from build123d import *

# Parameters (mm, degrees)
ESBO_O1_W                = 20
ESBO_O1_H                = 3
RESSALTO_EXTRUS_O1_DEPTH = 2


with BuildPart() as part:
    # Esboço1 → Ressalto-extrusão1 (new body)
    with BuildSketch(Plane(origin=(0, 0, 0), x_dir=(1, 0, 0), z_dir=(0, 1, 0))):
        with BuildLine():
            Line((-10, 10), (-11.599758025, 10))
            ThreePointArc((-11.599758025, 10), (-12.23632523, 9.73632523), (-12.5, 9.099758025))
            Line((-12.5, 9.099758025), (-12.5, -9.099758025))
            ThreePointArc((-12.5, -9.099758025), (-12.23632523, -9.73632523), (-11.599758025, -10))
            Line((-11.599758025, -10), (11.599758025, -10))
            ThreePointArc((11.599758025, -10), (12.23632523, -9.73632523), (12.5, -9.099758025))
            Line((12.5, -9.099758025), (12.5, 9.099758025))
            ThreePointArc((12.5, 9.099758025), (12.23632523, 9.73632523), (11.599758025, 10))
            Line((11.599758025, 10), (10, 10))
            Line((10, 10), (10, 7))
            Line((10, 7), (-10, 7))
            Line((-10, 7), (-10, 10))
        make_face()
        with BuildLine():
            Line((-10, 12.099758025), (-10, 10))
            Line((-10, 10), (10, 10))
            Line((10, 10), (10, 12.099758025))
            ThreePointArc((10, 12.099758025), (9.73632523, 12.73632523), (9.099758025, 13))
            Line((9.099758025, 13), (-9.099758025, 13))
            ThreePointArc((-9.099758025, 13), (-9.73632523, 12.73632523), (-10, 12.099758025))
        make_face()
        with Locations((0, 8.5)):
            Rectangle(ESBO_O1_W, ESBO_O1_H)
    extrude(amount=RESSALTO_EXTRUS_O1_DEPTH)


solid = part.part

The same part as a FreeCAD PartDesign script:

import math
import FreeCAD as App
import Part
import Sketcher
Q = App.Units.Quantity

doc = App.newDocument("Part")
params = doc.addObject("Spreadsheet::Sheet", "Params")
for row, (alias, value) in enumerate([
    ("pad1_length", "2 mm"),
], start=1):
    params.set(f"A{row}", alias)
    params.set(f"B{row}", "=" + value)
    params.setAlias(f"B{row}", alias)

body = doc.addObject("PartDesign::Body", "Body")

sketch1 = body.newObject("Sketcher::SketchObject", "Sketch")
sketch1.AttachmentSupport = (doc.getObject("XZ_Plane"), [""])
sketch1.MapMode = "FlatFace"
sketch1.addGeometry([
    Part.LineSegment(App.Vector(-10, -10, 0), App.Vector(-11.599758, -10, 0)),
    Part.ArcOfCircle(Part.Circle(App.Vector(-11.599758, -9.099758, 0), App.Vector(0, 0, 1), 0.900242), math.radians(-180), math.radians(-90)),
    Part.LineSegment(App.Vector(-12.5, -9.099758, 0), App.Vector(-12.5, 9.099758, 0)),
    Part.ArcOfCircle(Part.Circle(App.Vector(-11.599758, 9.099758, 0), App.Vector(0, 0, 1), 0.900242), math.radians(90), math.radians(180)),
    Part.LineSegment(App.Vector(-11.599758, 10, 0), App.Vector(11.599758, 10, 0)),
    Part.ArcOfCircle(Part.Circle(App.Vector(11.599758, 9.099758, 0), App.Vector(0, 0, 1), 0.900242), math.radians(0), math.radians(90)),
    Part.LineSegment(App.Vector(12.5, 9.099758, 0), App.Vector(12.5, -9.099758, 0)),
    Part.ArcOfCircle(Part.Circle(App.Vector(11.599758, -9.099758, 0), App.Vector(0, 0, 1), 0.900242), math.radians(-90), math.radians(0)),
    Part.LineSegment(App.Vector(11.599758, -10, 0), App.Vector(10, -10, 0)),
    Part.LineSegment(App.Vector(10, -10, 0), App.Vector(10, -12.099758, 0)),
    Part.ArcOfCircle(Part.Circle(App.Vector(9.099758, -12.099758, 0), App.Vector(0, 0, 1), 0.900242), math.radians(-90), math.radians(0)),
    Part.LineSegment(App.Vector(9.099758, -13, 0), App.Vector(-9.099758, -13, 0)),
    Part.ArcOfCircle(Part.Circle(App.Vector(-9.099758, -12.099758, 0), App.Vector(0, 0, 1), 0.900242), math.radians(-180), math.radians(-90)),
    Part.LineSegment(App.Vector(-10, -12.099758, 0), App.Vector(-10, -10, 0)),
], False)
sketch1.addConstraint([
    Sketcher.Constraint("Tangent", 0, 2, 1, 2),
    Sketcher.Constraint("Tangent", 1, 1, 2, 1),
    Sketcher.Constraint("Tangent", 2, 2, 3, 2),
    Sketcher.Constraint("Tangent", 3, 1, 4, 1),
    Sketcher.Constraint("Tangent", 4, 2, 5, 2),
    Sketcher.Constraint("Tangent", 5, 1, 6, 1),
    Sketcher.Constraint("Tangent", 6, 2, 7, 2),
    Sketcher.Constraint("Tangent", 7, 1, 8, 1),
    Sketcher.Constraint("Coincident", 8, 2, 9, 1),
    Sketcher.Constraint("Tangent", 9, 2, 10, 2),
    Sketcher.Constraint("Tangent", 10, 1, 11, 1),
    Sketcher.Constraint("Tangent", 11, 2, 12, 2),
    Sketcher.Constraint("Tangent", 12, 1, 13, 1),
    Sketcher.Constraint("Coincident", 13, 2, 0, 1),
    Sketcher.Constraint("Horizontal", 0),
    Sketcher.Constraint("Vertical", 2),
    Sketcher.Constraint("Horizontal", 4),
    Sketcher.Constraint("Vertical", 6),
    Sketcher.Constraint("Horizontal", 8),
    Sketcher.Constraint("Vertical", 9),
    Sketcher.Constraint("Horizontal", 11),
    Sketcher.Constraint("Vertical", 13),
    Sketcher.Constraint("Equal", 1, 3),
    Sketcher.Constraint("Equal", 3, 5),
    Sketcher.Constraint("Equal", 5, 7),
    Sketcher.Constraint("Equal", 7, 10),
    Sketcher.Constraint("Equal", 10, 12),
    Sketcher.Constraint("Symmetric", 1, 3, 5, 3, -1, 1),
    Sketcher.Constraint("Symmetric", 8, 2, 13, 2, -2),
    Sketcher.Constraint("Equal", 11, 2),
    Sketcher.Constraint("DistanceY", 0, 2, -1, 1, Q("10 mm")),
    Sketcher.Constraint("DistanceY", 10, 1, -1, 1, Q("13 mm")),
    Sketcher.Constraint("DistanceX", 1, 1, -1, 1, Q("12.5 mm")),
    Sketcher.Constraint("Radius", 1, Q("0.900242 mm")),
])
pad1 = body.newObject("PartDesign::Pad", "Pad")
pad1.Profile = sketch1
pad1.setExpression("Length", "Params.pad1_length")
pad1.Reversed = True

doc.recompute()
